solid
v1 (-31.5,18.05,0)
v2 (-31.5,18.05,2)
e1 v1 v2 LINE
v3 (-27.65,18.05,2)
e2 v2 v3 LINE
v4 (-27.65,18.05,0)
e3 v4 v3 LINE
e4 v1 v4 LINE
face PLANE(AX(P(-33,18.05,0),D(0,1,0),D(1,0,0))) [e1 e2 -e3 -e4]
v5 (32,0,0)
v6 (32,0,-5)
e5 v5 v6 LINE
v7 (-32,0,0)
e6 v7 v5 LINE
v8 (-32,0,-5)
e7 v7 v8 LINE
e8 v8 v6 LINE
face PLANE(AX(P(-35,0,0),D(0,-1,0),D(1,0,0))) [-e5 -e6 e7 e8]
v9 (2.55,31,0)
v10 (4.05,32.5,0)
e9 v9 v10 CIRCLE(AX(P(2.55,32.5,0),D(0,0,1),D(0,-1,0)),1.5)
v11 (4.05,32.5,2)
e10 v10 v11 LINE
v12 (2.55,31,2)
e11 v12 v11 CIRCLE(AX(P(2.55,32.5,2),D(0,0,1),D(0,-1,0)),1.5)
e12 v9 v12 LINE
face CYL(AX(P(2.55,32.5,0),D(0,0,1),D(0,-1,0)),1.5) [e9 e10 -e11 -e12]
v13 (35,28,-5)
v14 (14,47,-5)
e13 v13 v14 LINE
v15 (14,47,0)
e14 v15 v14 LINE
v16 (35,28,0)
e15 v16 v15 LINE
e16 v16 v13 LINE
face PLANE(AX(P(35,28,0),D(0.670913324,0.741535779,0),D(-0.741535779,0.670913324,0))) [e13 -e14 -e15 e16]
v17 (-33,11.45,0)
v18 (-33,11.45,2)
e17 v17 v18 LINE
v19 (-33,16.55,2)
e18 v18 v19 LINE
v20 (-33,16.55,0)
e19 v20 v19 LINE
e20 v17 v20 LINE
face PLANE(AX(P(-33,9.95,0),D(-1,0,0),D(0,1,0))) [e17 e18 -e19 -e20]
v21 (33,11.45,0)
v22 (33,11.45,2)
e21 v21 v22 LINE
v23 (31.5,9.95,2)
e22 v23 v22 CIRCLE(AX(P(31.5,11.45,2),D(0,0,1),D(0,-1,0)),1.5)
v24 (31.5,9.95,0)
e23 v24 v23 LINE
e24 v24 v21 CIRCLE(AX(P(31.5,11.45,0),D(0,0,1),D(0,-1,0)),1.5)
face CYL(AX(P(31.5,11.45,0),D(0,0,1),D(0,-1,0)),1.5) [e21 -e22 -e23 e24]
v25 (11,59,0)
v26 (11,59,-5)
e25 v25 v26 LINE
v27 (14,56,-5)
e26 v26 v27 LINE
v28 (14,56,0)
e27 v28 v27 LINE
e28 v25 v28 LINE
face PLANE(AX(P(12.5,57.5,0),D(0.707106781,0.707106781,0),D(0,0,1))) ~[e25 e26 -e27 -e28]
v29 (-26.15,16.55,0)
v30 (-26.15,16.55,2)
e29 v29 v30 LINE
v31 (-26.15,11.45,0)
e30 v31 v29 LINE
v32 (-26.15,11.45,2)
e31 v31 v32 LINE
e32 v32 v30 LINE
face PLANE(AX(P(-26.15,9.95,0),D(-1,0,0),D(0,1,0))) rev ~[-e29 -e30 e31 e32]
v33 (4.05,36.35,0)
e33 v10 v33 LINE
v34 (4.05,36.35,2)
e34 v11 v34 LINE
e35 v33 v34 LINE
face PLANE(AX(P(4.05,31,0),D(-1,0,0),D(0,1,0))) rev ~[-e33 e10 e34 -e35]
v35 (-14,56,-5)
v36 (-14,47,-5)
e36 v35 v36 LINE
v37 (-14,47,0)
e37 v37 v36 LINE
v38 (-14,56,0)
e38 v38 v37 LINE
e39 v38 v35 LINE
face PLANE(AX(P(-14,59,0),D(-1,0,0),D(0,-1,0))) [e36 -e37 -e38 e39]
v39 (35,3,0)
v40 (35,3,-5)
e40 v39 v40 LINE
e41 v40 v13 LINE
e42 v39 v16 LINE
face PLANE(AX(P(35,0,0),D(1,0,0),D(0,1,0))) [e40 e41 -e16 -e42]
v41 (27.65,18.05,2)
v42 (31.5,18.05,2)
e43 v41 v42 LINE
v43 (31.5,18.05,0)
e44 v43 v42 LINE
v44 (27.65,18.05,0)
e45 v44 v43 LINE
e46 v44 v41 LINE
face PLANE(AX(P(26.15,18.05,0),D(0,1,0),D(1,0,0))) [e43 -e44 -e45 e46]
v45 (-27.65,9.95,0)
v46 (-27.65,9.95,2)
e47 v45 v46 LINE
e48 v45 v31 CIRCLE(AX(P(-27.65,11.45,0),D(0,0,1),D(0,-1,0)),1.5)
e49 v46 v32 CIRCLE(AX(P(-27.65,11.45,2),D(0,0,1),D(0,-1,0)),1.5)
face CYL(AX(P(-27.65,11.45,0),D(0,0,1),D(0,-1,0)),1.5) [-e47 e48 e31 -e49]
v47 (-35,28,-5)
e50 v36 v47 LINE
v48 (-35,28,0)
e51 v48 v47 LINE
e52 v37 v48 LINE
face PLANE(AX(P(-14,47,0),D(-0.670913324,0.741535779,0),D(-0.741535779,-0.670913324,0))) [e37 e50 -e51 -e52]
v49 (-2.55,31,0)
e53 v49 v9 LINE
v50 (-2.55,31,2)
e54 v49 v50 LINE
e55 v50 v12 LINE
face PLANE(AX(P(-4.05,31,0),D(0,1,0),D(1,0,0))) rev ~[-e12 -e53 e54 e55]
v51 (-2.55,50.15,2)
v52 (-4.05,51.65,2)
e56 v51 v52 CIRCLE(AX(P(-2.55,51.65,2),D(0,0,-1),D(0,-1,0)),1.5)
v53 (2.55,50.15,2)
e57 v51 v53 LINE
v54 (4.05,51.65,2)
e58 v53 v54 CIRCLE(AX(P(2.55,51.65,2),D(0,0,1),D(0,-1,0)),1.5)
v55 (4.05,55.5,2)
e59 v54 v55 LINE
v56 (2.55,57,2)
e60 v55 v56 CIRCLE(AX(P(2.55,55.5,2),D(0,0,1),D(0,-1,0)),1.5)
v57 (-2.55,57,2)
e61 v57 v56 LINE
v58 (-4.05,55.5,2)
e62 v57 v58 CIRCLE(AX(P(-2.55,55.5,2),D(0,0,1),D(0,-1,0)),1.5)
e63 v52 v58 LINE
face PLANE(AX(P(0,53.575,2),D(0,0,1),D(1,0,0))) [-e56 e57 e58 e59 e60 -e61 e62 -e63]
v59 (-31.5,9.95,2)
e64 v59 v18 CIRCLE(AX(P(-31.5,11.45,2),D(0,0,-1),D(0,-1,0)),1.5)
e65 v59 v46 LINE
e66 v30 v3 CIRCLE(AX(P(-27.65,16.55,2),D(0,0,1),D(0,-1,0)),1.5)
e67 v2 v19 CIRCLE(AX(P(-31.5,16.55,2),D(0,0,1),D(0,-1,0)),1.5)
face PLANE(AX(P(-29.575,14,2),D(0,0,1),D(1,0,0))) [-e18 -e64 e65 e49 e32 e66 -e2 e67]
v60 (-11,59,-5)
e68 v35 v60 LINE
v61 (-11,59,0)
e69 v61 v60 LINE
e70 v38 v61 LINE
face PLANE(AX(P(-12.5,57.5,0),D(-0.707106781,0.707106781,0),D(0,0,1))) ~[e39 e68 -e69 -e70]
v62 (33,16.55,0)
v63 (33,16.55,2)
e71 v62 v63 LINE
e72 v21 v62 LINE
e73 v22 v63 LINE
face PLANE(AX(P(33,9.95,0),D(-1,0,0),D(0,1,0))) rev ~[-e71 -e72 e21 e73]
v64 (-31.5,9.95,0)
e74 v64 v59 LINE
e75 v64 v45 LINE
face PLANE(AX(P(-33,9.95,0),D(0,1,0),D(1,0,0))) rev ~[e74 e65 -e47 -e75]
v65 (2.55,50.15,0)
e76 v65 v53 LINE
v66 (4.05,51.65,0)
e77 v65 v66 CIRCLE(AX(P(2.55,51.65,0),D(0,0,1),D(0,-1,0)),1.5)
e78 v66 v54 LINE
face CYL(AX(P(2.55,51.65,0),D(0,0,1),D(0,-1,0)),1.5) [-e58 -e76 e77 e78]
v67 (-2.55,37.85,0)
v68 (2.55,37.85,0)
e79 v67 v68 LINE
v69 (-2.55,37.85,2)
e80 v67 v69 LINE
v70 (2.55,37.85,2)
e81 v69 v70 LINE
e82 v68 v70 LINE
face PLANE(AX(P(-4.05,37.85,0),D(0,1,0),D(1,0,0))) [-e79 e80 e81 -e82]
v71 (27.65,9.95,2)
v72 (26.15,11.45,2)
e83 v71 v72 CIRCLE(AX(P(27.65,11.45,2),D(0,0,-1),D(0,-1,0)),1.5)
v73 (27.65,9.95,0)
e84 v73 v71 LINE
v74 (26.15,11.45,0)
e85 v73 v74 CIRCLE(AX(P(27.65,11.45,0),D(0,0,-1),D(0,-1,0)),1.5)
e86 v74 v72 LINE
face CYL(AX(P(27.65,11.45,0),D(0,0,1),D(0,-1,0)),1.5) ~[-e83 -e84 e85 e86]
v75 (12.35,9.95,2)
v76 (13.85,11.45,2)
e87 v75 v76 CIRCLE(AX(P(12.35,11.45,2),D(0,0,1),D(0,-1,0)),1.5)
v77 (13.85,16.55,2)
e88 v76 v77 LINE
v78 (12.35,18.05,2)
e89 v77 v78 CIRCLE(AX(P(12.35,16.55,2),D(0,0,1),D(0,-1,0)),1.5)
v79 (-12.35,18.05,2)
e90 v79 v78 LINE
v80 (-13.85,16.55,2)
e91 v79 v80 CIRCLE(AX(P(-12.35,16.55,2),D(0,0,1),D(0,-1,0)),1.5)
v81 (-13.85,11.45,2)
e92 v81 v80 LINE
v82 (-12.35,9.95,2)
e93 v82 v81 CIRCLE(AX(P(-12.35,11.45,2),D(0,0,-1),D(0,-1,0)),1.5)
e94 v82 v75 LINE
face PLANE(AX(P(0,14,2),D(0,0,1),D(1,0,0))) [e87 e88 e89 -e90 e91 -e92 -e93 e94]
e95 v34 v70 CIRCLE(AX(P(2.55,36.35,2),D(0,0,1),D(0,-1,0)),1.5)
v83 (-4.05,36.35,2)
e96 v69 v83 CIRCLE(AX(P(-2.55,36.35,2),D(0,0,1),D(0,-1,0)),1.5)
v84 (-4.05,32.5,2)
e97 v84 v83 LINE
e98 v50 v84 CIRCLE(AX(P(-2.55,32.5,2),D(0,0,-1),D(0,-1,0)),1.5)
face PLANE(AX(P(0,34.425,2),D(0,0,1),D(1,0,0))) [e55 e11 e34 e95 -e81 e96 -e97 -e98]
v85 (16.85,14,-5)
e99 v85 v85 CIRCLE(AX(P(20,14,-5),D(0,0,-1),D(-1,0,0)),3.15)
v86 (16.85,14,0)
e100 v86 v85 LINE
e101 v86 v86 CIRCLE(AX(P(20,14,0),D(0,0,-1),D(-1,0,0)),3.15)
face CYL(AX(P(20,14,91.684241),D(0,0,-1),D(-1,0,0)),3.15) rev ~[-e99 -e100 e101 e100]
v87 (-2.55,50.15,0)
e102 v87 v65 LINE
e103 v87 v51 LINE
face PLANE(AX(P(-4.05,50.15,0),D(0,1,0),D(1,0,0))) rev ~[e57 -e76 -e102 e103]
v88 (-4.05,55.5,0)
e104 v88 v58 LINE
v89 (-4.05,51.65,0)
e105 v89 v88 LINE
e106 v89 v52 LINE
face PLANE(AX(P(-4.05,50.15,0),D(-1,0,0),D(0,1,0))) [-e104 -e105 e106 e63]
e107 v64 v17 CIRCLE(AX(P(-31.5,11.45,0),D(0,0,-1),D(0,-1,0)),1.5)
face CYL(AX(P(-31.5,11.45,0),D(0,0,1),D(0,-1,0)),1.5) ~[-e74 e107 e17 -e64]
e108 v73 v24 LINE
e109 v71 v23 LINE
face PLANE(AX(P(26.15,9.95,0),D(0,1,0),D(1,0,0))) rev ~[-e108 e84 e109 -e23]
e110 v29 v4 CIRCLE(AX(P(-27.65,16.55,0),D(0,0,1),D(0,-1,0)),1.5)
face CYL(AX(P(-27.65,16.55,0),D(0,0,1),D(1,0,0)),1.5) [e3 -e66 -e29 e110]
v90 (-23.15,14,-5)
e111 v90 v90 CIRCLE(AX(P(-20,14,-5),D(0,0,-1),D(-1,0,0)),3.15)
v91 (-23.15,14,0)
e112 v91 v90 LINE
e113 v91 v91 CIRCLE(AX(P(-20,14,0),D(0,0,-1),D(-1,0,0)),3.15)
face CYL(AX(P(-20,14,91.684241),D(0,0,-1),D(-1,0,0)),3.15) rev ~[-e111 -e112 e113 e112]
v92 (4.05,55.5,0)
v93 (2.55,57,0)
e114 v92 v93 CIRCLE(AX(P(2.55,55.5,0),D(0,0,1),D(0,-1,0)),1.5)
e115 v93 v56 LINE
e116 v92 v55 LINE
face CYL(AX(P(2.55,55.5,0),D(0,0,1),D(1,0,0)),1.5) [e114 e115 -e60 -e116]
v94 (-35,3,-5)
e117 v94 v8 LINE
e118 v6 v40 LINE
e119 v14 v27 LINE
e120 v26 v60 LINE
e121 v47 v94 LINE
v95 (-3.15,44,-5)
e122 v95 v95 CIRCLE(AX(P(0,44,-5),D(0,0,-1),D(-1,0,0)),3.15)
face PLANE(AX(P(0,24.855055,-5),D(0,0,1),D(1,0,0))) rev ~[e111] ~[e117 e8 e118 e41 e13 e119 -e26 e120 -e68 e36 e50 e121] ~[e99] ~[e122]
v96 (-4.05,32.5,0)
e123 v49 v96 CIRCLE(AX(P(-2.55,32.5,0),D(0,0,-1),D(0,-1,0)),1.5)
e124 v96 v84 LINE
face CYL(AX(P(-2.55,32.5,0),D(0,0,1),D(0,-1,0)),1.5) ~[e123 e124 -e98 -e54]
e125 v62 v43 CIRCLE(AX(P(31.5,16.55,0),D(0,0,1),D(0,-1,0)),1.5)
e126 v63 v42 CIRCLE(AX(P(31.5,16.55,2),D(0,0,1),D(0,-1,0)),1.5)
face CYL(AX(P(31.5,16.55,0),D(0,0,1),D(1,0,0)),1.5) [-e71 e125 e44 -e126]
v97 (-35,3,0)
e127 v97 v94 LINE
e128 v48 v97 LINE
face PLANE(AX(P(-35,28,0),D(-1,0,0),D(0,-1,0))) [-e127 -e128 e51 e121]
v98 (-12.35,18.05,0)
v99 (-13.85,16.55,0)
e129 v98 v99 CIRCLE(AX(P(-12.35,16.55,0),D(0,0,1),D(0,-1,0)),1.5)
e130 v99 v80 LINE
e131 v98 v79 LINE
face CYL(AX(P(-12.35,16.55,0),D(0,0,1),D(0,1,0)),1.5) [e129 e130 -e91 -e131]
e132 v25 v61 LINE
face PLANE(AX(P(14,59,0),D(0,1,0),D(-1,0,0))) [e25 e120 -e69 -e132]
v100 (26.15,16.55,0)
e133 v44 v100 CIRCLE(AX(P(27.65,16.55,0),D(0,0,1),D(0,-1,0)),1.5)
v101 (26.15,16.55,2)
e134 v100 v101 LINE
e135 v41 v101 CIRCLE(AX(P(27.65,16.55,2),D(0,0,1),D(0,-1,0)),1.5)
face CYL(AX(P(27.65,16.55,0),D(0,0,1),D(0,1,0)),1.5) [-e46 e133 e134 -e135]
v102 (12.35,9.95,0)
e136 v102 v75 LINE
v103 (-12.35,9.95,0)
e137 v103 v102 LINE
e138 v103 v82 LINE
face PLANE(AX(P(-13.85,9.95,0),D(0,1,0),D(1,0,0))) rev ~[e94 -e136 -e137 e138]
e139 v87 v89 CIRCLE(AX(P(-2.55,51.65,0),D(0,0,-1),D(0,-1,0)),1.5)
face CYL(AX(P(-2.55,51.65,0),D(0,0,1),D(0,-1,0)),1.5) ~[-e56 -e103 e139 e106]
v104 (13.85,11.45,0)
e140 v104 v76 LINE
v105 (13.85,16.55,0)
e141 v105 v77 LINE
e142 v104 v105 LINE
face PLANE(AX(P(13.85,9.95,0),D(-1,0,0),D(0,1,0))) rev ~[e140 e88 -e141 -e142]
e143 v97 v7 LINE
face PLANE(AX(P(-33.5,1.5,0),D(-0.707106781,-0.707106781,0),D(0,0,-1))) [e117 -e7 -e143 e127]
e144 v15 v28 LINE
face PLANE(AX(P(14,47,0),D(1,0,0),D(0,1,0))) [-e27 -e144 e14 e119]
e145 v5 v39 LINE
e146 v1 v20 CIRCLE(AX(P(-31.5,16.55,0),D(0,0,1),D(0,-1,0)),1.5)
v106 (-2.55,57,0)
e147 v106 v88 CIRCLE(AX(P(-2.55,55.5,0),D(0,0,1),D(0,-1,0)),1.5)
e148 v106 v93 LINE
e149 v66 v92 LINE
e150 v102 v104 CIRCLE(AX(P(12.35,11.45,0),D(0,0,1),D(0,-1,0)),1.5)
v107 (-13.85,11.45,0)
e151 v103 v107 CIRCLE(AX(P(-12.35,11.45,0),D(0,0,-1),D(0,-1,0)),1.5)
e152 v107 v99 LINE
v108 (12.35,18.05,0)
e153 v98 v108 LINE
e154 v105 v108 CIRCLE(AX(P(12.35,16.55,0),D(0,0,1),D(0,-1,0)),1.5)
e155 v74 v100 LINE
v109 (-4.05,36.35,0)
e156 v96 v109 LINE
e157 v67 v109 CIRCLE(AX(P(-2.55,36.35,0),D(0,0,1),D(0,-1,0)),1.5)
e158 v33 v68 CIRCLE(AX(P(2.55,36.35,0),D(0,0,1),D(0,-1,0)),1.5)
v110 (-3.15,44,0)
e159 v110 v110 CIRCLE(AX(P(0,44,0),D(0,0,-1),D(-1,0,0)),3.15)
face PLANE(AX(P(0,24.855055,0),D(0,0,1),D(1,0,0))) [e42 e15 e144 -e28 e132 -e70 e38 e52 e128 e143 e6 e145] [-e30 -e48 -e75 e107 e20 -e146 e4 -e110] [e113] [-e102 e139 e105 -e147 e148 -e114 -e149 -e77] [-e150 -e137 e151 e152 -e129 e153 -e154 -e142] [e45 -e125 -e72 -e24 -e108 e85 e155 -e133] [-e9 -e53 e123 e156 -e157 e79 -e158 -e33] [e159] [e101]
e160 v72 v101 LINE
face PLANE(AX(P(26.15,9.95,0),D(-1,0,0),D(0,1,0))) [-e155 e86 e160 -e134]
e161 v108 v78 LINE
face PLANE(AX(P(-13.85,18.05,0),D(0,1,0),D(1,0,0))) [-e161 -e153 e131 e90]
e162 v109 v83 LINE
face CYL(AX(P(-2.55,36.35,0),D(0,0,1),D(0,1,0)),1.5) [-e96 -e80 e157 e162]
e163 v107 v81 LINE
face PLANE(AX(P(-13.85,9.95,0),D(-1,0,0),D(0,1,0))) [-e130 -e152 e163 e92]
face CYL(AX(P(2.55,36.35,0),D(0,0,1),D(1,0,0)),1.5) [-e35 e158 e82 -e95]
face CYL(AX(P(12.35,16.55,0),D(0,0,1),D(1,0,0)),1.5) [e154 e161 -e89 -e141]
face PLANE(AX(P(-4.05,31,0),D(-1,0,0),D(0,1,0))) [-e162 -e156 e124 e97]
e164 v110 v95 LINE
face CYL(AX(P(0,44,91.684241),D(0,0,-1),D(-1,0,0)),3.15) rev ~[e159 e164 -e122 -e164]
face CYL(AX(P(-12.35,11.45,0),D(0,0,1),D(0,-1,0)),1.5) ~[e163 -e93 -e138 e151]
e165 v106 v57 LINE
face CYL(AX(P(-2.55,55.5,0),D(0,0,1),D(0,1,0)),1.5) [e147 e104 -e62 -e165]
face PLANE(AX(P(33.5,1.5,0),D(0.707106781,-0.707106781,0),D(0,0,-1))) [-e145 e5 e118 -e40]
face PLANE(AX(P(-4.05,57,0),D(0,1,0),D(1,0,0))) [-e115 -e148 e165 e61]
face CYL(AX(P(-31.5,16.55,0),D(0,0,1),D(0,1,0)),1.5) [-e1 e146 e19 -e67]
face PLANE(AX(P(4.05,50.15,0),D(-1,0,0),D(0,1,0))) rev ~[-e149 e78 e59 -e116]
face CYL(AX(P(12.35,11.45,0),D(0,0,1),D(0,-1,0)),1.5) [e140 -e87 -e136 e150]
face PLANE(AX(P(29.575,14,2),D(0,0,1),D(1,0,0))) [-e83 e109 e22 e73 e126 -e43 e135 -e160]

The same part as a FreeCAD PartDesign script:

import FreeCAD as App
import Part
import Sketcher
from FreeCAD import Vector


def edges_at(feature, points):
    """Names of the edges that pass closest to the given points."""
    edges = feature.Shape.Edges
    near = lambda p: min(range(len(edges)), key=lambda i: edges[i].distToShape(Part.Vertex(*p))[0])
    return sorted({f"Edge{near(p) + 1}" for p in points})


def add_polygon(sketch, points):
    """Adds a closed chain of lines whose ends are joined by coincident constraints."""
    first, n = sketch.GeometryCount, len(points)
    for a, b in zip(points, points[1:] + points[:1]):
        sketch.addGeometry(Part.LineSegment(App.Vector(*a, 0), App.Vector(*b, 0)), False)
    for i in range(n):
        sketch.addConstraint(Sketcher.Constraint("Coincident", first + i, 2, first + (i + 1) % n, 1))

doc = App.newDocument("Part")
body = doc.addObject("PartDesign::Body", "Body")

sketch1 = doc.addObject("Sketcher::SketchObject", "Sketch")
body.addObject(sketch1)
sketch1.AttachmentSupport = (doc.XY_Plane, [""])
sketch1.MapMode = "FlatFace"
add_polygon(sketch1, [(-35, 28), (-35, 0), (35, 0), (35, 28), (14, 47), (14, 59), (-14, 59), (-14, 47)])
sketch1.addConstraint(Sketcher.Constraint("Vertical", 0))
sketch1.addConstraint(Sketcher.Constraint("Horizontal", 1))
sketch1.addConstraint(Sketcher.Constraint("Vertical", 2))
sketch1.addConstraint(Sketcher.Constraint("Vertical", 4))
sketch1.addConstraint(Sketcher.Constraint("Horizontal", 5))
sketch1.addConstraint(Sketcher.Constraint("Vertical", 6))
sketch1.addConstraint(Sketcher.Constraint("Symmetric", 0, 2, 1, 2, -1, 1))
sketch1.addConstraint(Sketcher.Constraint("Symmetric", 3, 2, 6, 2, -2))
sketch1.addConstraint(Sketcher.Constraint("Horizontal", 2, 2, 7, 2))
sketch1.addConstraint(Sketcher.Constraint("Equal", 5, 0))
sketch1.addConstraint(Sketcher.Constraint("DistanceX", 1, 1, 1, 2, 70.0))
sketch1.addConstraint(Sketcher.Constraint("DistanceX", 5, 2, 5, 1, 28.0))
sketch1.addConstraint(Sketcher.Constraint("DistanceY", 4, 1, 4, 2, 12.0))
sketch1.addConstraint(Sketcher.Constraint("DistanceY", -1, 1, 3, 2, 47.0))
pad1 = doc.addObject("PartDesign::Pad", "Pad")
body.addObject(pad1)
pad1.Profile = sketch1
pad1.Length = 5
pad1.Reversed = True

sketch2 = doc.addObject("Sketcher::SketchObject", "Sketch001")
body.addObject(sketch2)
sketch2.AttachmentSupport = (doc.XY_Plane, [""])
sketch2.MapMode = "FlatFace"
sketch2.addGeometry(Part.Circle(Vector(20, 14, 0), Vector(0, 0, 1), 3.1), False)
sketch2.addGeometry(Part.Circle(Vector(-20, 14, 0), Vector(0, 0, 1), 3.1), False)
sketch2.addGeometry(Part.Circle(Vector(0, 44, 0), Vector(0, 0, 1), 3.1), False)
sketch2.addConstraint(Sketcher.Constraint("Equal", 0, 1))
sketch2.addConstraint(Sketcher.Constraint("Equal", 1, 2))
sketch2.addConstraint(Sketcher.Constraint("Symmetric", 0, 3, 1, 3, -2))
sketch2.addConstraint(Sketcher.Constraint("PointOnObject", 2, 3, -2))
sketch2.addConstraint(Sketcher.Constraint("Diameter", 0, 6.3))
sketch2.addConstraint(Sketcher.Constraint("DistanceX", -1, 1, 0, 3, 20.0))
sketch2.addConstraint(Sketcher.Constraint("DistanceY", -1, 1, 0, 3, 14.0))
sketch2.addConstraint(Sketcher.Constraint("DistanceY", -1, 1, 2, 3, 44.0))
doc.recompute()
hole = doc.addObject("PartDesign::Hole", "Hole")
body.addObject(hole)
hole.Profile = sketch2
hole.ThreadType = "None"
hole.Diameter = 6.3
hole.DepthType = "ThroughAll"
doc.recompute()

chamfer = doc.addObject("PartDesign::Chamfer", "Chamfer")
body.addObject(chamfer)
chamfer.Base = (hole, edges_at(hole, [
    (14, 59, -2.5),
    (-14, 59, -2.5),
    (35, 0, -2.5),
    (-35, 0, -2.5),
]))
chamfer.Size = 3

sketch3 = doc.addObject("Sketcher::SketchObject", "Sketch002")
body.addObject(sketch3)
sketch3.AttachmentSupport = (doc.XY_Plane, [""])
sketch3.MapMode = "FlatFace"
add_polygon(sketch3, [(-4, 57), (-4, 50), (4, 50), (4, 57)])
add_polygon(sketch3, [(-4, 38), (-4, 31), (4, 31), (4, 38)])
add_polygon(sketch3, [(26, 18), (26, 10), (33, 10), (33, 18)])
add_polygon(sketch3, [(-14, 18), (-14, 10), (14, 10), (14, 18)])
add_polygon(sketch3, [(-33, 18), (-33, 10), (-26, 10), (-26, 18)])
sketch3.addConstraint(Sketcher.Constraint("Vertical", 0))
sketch3.addConstraint(Sketcher.Constraint("Horizontal", 1))
sketch3.addConstraint(Sketcher.Constraint("Vertical", 2))
sketch3.addConstraint(Sketcher.Constraint("Horizontal", 3))
sketch3.addConstraint(Sketcher.Constraint("Vertical", 4))
sketch3.addConstraint(Sketcher.Constraint("Horizontal", 5))
sketch3.addConstraint(Sketcher.Constraint("Vertical", 6))
sketch3.addConstraint(Sketcher.Constraint("Horizontal", 7))
sketch3.addConstraint(Sketcher.Constraint("Vertical", 8))
sketch3.addConstraint(Sketcher.Constraint("Horizontal", 9))
sketch3.addConstraint(Sketcher.Constraint("Vertical", 10))
sketch3.addConstraint(Sketcher.Constraint("Horizontal", 11))
sketch3.addConstraint(Sketcher.Constraint("Vertical", 12))
sketch3.addConstraint(Sketcher.Constraint("Horizontal", 13))
sketch3.addConstraint(Sketcher.Constraint("Vertical", 14))
sketch3.addConstraint(Sketcher.Constraint("Horizontal", 15))
sketch3.addConstraint(Sketcher.Constraint("Vertical", 16))
sketch3.addConstraint(Sketcher.Constraint("Horizontal", 17))
sketch3.addConstraint(Sketcher.Constraint("Vertical", 18))
sketch3.addConstraint(Sketcher.Constraint("Horizontal", 19))
sketch3.addConstraint(Sketcher.Constraint("Symmetric", 9, 2, 16, 2, -2))
sketch3.addConstraint(Sketcher.Constraint("Symmetric", 11, 2, 18, 2, -2))
sketch3.addConstraint(Sketcher.Constraint("Horizontal", 9, 2, 12, 2))
sketch3.addConstraint(Sketcher.Constraint("Horizontal", 11, 2, 14, 2))
sketch3.addConstraint(Sketcher.Constraint("Vertical", 3, 2, 4, 2))
sketch3.addConstraint(Sketcher.Constraint("Vertical", 2, 2, 5, 2))
sketch3.addConstraint(Sketcher.Constraint("Equal", 19, 0))
sketch3.addConstraint(Sketcher.Constraint("Equal", 2, 4))
sketch3.addConstraint(Sketcher.Constraint("Equal", 7, 8))
sketch3.addConstraint(Sketcher.Constraint("DistanceX", 1, 1, 1, 2, 8.1))
sketch3.addConstraint(Sketcher.Constraint("DistanceX", 13, 1, 13, 2, 27.7))
sketch3.addConstraint(Sketcher.Constraint("DistanceY", -1, 1, 2, 2, 57.0))
sketch3.addConstraint(Sketcher.Constraint("DistanceY", -1, 1, 4, 2, 31.0))
sketch3.addConstraint(Sketcher.Constraint("DistanceX", -1, 1, 9, 2, 33.0))
sketch3.addConstraint(Sketcher.Constraint("DistanceX", 12, 2, 8, 2, 40.0))
sketch3.addConstraint(Sketcher.Constraint("DistanceX", 9, 1, 9, 2, 6.85))
sketch3.addConstraint(Sketcher.Constraint("DistanceX", 5, 2, 8, 2, 22.1))
sketch3.addConstraint(Sketcher.Constraint("DistanceY", 8, 2, 6, 2, 27.9))
pad2 = doc.addObject("PartDesign::Pad", "Pad001")
body.addObject(pad2)
pad2.Profile = sketch3
pad2.Length = 2
doc.recompute()

fillet = doc.addObject("PartDesign::Fillet", "Fillet")
body.addObject(fillet)
fillet.Base = (pad2, edges_at(pad2, [
    (-26.15, 9.95, 1),
    (-33, 9.95, 1),
    (-33, 18.05, 1),
    (-26.15, 18.05, 1),
    (-13.85, 9.95, 1),
    (-13.85, 18.05, 1),
    (13.85, 9.95, 1),
    (13.85, 18.05, 1),
    (33, 18.05, 1),
    (33, 9.95, 1),
    (26.15, 9.95, 1),
    (26.15, 18.05, 1),
    (4.05, 31, 1),
    (-4.05, 31, 1),
    (4.05, 37.85, 1),
    (-4.05, 37.85, 1),
    (4.05, 57, 1),
    (4.05, 50.15, 1),
    (-4.05, 57, 1),
    (-4.05, 50.15, 1),
]))
fillet.Radius = 1.5

doc.recompute()
